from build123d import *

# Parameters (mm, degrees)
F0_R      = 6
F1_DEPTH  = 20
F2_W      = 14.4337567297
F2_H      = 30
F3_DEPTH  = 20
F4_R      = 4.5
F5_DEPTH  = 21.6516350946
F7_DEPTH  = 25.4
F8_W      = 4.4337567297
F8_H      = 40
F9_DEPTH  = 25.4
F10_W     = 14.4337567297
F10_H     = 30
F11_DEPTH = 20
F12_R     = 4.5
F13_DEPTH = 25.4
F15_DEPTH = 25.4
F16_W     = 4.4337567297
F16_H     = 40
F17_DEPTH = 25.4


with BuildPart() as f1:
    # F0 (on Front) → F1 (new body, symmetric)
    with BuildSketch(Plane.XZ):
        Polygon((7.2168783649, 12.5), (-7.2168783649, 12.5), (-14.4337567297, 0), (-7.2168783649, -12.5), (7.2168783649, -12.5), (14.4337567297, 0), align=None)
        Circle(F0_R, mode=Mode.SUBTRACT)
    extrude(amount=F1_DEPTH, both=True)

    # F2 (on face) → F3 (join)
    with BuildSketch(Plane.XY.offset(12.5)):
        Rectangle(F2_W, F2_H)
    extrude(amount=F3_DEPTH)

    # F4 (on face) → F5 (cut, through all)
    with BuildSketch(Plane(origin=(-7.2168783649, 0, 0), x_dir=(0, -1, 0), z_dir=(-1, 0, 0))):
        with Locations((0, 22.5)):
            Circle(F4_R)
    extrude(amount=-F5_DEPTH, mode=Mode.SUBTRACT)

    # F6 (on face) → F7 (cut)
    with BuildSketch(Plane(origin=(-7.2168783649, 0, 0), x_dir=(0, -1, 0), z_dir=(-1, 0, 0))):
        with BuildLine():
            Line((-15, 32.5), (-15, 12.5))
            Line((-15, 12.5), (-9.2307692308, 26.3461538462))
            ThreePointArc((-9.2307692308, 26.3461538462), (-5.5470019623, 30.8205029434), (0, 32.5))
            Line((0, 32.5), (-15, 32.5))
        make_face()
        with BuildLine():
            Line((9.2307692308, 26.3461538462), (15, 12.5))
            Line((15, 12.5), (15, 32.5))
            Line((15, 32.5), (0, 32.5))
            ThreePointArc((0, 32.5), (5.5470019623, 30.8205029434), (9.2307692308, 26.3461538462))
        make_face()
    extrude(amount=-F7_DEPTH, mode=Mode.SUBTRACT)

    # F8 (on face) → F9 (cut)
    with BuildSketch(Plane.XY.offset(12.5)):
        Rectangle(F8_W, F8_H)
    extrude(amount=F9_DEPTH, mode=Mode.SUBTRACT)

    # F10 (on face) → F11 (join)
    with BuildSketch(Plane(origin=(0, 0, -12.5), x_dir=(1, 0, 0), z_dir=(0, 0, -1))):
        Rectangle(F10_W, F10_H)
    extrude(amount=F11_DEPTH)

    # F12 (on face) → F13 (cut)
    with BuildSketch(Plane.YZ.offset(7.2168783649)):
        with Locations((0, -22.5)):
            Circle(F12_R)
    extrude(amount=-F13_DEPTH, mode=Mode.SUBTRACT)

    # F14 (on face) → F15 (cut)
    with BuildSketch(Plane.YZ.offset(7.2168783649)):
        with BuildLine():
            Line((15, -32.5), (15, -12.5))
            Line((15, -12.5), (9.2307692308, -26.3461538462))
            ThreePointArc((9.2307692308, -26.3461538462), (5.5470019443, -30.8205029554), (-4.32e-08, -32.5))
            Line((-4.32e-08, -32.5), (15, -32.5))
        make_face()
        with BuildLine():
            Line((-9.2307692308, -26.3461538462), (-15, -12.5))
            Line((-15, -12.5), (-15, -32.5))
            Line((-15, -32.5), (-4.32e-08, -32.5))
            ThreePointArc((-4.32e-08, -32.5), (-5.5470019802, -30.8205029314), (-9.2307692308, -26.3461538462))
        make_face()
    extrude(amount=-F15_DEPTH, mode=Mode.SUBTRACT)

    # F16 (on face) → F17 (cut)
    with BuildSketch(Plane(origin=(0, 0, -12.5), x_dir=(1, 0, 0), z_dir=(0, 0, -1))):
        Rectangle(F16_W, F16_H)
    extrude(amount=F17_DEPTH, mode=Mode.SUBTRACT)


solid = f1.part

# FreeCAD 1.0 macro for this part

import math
import FreeCAD as App
import Part
import Sketcher

V = App.Vector
Q = App.Units.Quantity


def add_polygon(sketch, points):
    """Adds a closed chain of lines whose ends are joined by coincident constraints."""
    first, n = sketch.GeometryCount, len(points)
    for a, b in zip(points, points[1:] + points[:1]):
        sketch.addGeometry(Part.LineSegment(App.Vector(*a, 0), App.Vector(*b, 0)), False)
    for i in range(n):
        sketch.addConstraint(Sketcher.Constraint("Coincident", first + i, 2, first + (i + 1) % n, 1))

doc = App.newDocument("Part")
body = doc.addObject("PartDesign::Body", "Body")

# Sketch on XZ plane
sketch1 = body.newObject("Sketcher::SketchObject", "Sketch")
sketch1.AttachmentSupport = (doc.getObject("XZ_Plane"), [""])
sketch1.MapMode = "FlatFace"
add_polygon(sketch1, [(7.216878, 12.5), (-7.216878, 12.5), (-14.433757, 0), (-7.216878, -12.5), (7.216878, -12.5), (14.433757, 0)])  # lines 0-5
sketch1.addGeometry(Part.Circle(V(0, 0, 0), V(0, 0, 1), 6), False)  # 6
sketch1.addConstraint([
    Sketcher.Constraint("Horizontal", 0),
    Sketcher.Constraint("Horizontal", 3),
    Sketcher.Constraint("Coincident", 6, 3, -1, 1),
    Sketcher.Constraint("Symmetric", 0, 2, 3, 2, -1, 1),
    Sketcher.Constraint("Symmetric", 1, 2, 4, 2, -1, 1),
    Sketcher.Constraint("PointOnObject", 1, 2, -1),
    Sketcher.Constraint("Parallel", 2, 5),
    Sketcher.Constraint("Vertical", 0, 2, 2, 2),
    Sketcher.Constraint("Diameter", 6, Q("12 mm")),
    Sketcher.Constraint("Angle", 1, Q("-120 deg")),
    Sketcher.Constraint("DistanceY", 2, 2, 0, 2, Q("25 mm")),
    Sketcher.Constraint("DistanceX", 0, 2, 0, 1, Q("14.433757 mm")),
])
pad1 = body.newObject("PartDesign::Pad", "Pad")
pad1.Profile = sketch1
pad1.Length = 40
pad1.Midplane = True

# Sketch on XY plane
sketch2 = body.newObject("Sketcher::SketchObject", "Sketch001")
sketch2.AttachmentSupport = (doc.getObject("XY_Plane"), [""])
sketch2.MapMode = "FlatFace"
sketch2.AttachmentOffset = App.Placement(V(0, 0, 12.5), App.Rotation())
add_polygon(sketch2, [(-7.216878, 15), (-7.216878, -15), (7.216878, -15), (7.216878, 15)])  # lines 0-3
sketch2.addConstraint([
    Sketcher.Constraint("Vertical", 0),
    Sketcher.Constraint("Horizontal", 1),
    Sketcher.Constraint("Vertical", 2),
    Sketcher.Constraint("Horizontal", 3),
    Sketcher.Constraint("Symmetric", 0, 2, 2, 2, -1, 1),
    Sketcher.Constraint("DistanceY", 0, 2, 0, 1, Q("30 mm")),
    Sketcher.Constraint("DistanceX", 1, 1, 1, 2, Q("14.433757 mm")),
])
pad2 = body.newObject("PartDesign::Pad", "Pad001")
pad2.Profile = sketch2
pad2.Length = 20

# Sketch on YZ plane
sketch3 = body.newObject("Sketcher::SketchObject", "Sketch002")
sketch3.AttachmentSupport = (doc.getObject("YZ_Plane"), [""])
sketch3.MapMode = "FlatFace"
sketch3.AttachmentOffset = App.Placement(V(0, 0, -7.216878), App.Rotation())
sketch3.addGeometry(Part.Circle(V(0, 22.5, 0), V(0, 0, 1), 4.5), False)
sketch3.addConstraint([
    Sketcher.Constraint("PointOnObject", 0, 3, -2),
    Sketcher.Constraint("Diameter", 0, Q("9 mm")),
    Sketcher.Constraint("DistanceY", -1, 1, 0, 3, Q("22.5 mm")),
])
pocket1 = body.newObject("PartDesign::Pocket", "Pocket")
pocket1.Profile = sketch3
pocket1.Type = "ThroughAll"
pocket1.Reversed = True

# Sketch on YZ plane
sketch4 = body.newObject("Sketcher::SketchObject", "Sketch003")
sketch4.AttachmentSupport = (doc.getObject("YZ_Plane"), [""])
sketch4.MapMode = "FlatFace"
sketch4.AttachmentOffset = App.Placement(V(0, 0, -7.216878), App.Rotation())
sketch4.addGeometry([
    Part.LineSegment(V(15, 32.5, 0), V(15, 12.5, 0)),  # 0
    Part.LineSegment(V(15, 12.5, 0), V(9.230769, 26.346154, 0)),  # 1
    Part.ArcOfCircle(Part.Circle(V(0, 22.5, 0), V(0, 0, 1), 10), math.radians(22.619865), math.radians(90)),  # 2
    Part.LineSegment(V(0, 32.5, 0), V(15, 32.5, 0)),  # 3
    Part.LineSegment(V(-9.230769, 26.346154, 0), V(-15, 12.5, 0)),  # 4
    Part.LineSegment(V(-15, 12.5, 0), V(-15, 32.5, 0)),  # 5
    Part.LineSegment(V(-15, 32.5, 0), V(0, 32.5, 0)),  # 6
    Part.ArcOfCircle(Part.Circle(V(0, 22.5, 0), V(0, 0, 1), 10), math.radians(90), math.radians(157.380135)),  # 7
], False)
sketch4.addConstraint([
    Sketcher.Constraint("Coincident", 0, 2, 1, 1),
    Sketcher.Constraint("Tangent", 1, 2, 2, 1),
    Sketcher.Constraint("Tangent", 2, 2, 3, 1),
    Sketcher.Constraint("Coincident", 3, 2, 0, 1),
    Sketcher.Constraint("Coincident", 4, 2, 5, 1),
    Sketcher.Constraint("Coincident", 5, 2, 6, 1),
    Sketcher.Constraint("Tangent", 6, 2, 7, 1),
    Sketcher.Constraint("Tangent", 7, 2, 4, 1),
    Sketcher.Constraint("Vertical", 0),
    Sketcher.Constraint("Horizontal", 3),
    Sketcher.Constraint("Vertical", 5),
    Sketcher.Constraint("Horizontal", 6),
    Sketcher.Constraint("Coincident", 7, 3, 2, 3),
    Sketcher.Constraint("Equal", 2, 7),
    Sketcher.Constraint("Symmetric", 0, 2, 4, 2, -2),
    Sketcher.Constraint("PointOnObject", 2, 3, -2),
    Sketcher.Constraint("Radius", 2, Q("10 mm")),
    Sketcher.Constraint("DistanceX", 3, 1, 3, 2, Q("15 mm")),
    Sketcher.Constraint("DistanceY", 0, 2, 0, 1, Q("20 mm")),
    Sketcher.Constraint("DistanceY", -1, 1, 2, 3, Q("22.5 mm")),
])
pocket2 = body.newObject("PartDesign::Pocket", "Pocket001")
pocket2.Profile = sketch4
pocket2.Length = 25.4
pocket2.Reversed = True

# Sketch on XY plane
sketch5 = body.newObject("Sketcher::SketchObject", "Sketch004")
sketch5.AttachmentSupport = (doc.getObject("XY_Plane"), [""])
sketch5.MapMode = "FlatFace"
sketch5.AttachmentOffset = App.Placement(V(0, 0, 12.5), App.Rotation())
add_polygon(sketch5, [(-2.216878, 20), (-2.216878, -20), (2.216878, -20), (2.216878, 20)])  # lines 0-3
sketch5.addConstraint([
    Sketcher.Constraint("Vertical", 0),
    Sketcher.Constraint("Horizontal", 1),
    Sketcher.Constraint("Vertical", 2),
    Sketcher.Constraint("Horizontal", 3),
    Sketcher.Constraint("Symmetric", 0, 2, 2, 2, -1, 1),
    Sketcher.Constraint("DistanceY", 0, 2, 0, 1, Q("40 mm")),
    Sketcher.Constraint("DistanceX", 1, 1, 1, 2, Q("4.433757 mm")),
])
pocket3 = body.newObject("PartDesign::Pocket", "Pocket002")
pocket3.Profile = sketch5
pocket3.Length = 25.4
pocket3.Reversed = True

# Sketch on XY plane
sketch6 = body.newObject("Sketcher::SketchObject", "Sketch005")
sketch6.AttachmentSupport = (doc.getObject("XY_Plane"), [""])
sketch6.MapMode = "FlatFace"
sketch6.AttachmentOffset = App.Placement(V(0, 0, -12.5), App.Rotation())
add_polygon(sketch6, [(-7.216878, -15), (-7.216878, 15), (7.216878, 15), (7.216878, -15)])  # lines 0-3
sketch6.addConstraint([
    Sketcher.Constraint("Vertical", 0),
    Sketcher.Constraint("Horizontal", 1),
    Sketcher.Constraint("Vertical", 2),
    Sketcher.Constraint("Horizontal", 3),
    Sketcher.Constraint("Symmetric", 0, 2, 2, 2, -1, 1),
    Sketcher.Constraint("DistanceY", 0, 1, 0, 2, Q("30 mm")),
    Sketcher.Constraint("DistanceX", 1, 1, 1, 2, Q("14.433757 mm")),
])
pad3 = body.newObject("PartDesign::Pad", "Pad002")
pad3.Profile = sketch6
pad3.Length = 20
pad3.Reversed = True

# Sketch on YZ plane
sketch7 = body.newObject("Sketcher::SketchObject", "Sketch006")
sketch7.AttachmentSupport = (doc.getObject("YZ_Plane"), [""])
sketch7.MapMode = "FlatFace"
sketch7.AttachmentOffset = App.Placement(V(0, 0, 7.216878), App.Rotation())
sketch7.addGeometry(Part.Circle(V(0, -22.5, 0), V(0, 0, 1), 4.5), False)
sketch7.addConstraint([
    Sketcher.Constraint("PointOnObject", 0, 3, -2),
    Sketcher.Constraint("Diameter", 0, Q("9 mm")),
    Sketcher.Constraint("DistanceY", 0, 3, -1, 1, Q("22.5 mm")),
])
pocket4 = body.newObject("PartDesign::Pocket", "Pocket003")
pocket4.Profile = sketch7
pocket4.Length = 25.4

# Sketch on YZ plane
sketch8 = body.newObject("Sketcher::SketchObject", "Sketch007")
sketch8.AttachmentSupport = (doc.getObject("YZ_Plane"), [""])
sketch8.MapMode = "FlatFace"
sketch8.AttachmentOffset = App.Placement(V(0, 0, 7.216878), App.Rotation())
sketch8.addGeometry([
    Part.LineSegment(V(15, -32.5, 0), V(15, -12.5, 0)),  # 0
    Part.LineSegment(V(15, -12.5, 0), V(9.230769, -26.346154, 0)),  # 1
    Part.ArcOfCircle(Part.Circle(V(0, -22.5, 0), V(0, 0, 1), 10), math.radians(-90), math.radians(-22.619865)),  # 2
    Part.LineSegment(V(0, -32.5, 0), V(15, -32.5, 0)),  # 3
    Part.LineSegment(V(-9.230769, -26.346154, 0), V(-15, -12.5, 0)),  # 4
    Part.LineSegment(V(-15, -12.5, 0), V(-15, -32.5, 0)),  # 5
    Part.LineSegment(V(-15, -32.5, 0), V(0, -32.5, 0)),  # 6
    Part.ArcOfCircle(Part.Circle(V(0, -22.5, 0), V(0, 0, 1), 10), math.radians(-157.380135), math.radians(-90)),  # 7
], False)
sketch8.addConstraint([
    Sketcher.Constraint("Coincident", 0, 2, 1, 1),
    Sketcher.Constraint("Tangent", 1, 2, 2, 2),
    Sketcher.Constraint("Tangent", 2, 1, 3, 1),
    Sketcher.Constraint("Coincident", 3, 2, 0, 1),
    Sketcher.Constraint("Coincident", 4, 2, 5, 1),
    Sketcher.Constraint("Coincident", 5, 2, 6, 1),
    Sketcher.Constraint("Tangent", 6, 2, 7, 2),
    Sketcher.Constraint("Tangent", 7, 1, 4, 1),
    Sketcher.Constraint("Vertical", 0),
    Sketcher.Constraint("Horizontal", 3),
    Sketcher.Constraint("Vertical", 5),
    Sketcher.Constraint("Horizontal", 6),
    Sketcher.Constraint("Coincident", 7, 3, 2, 3),
    Sketcher.Constraint("Equal", 2, 7),
    Sketcher.Constraint("Symmetric", 0, 2, 4, 2, -2),
    Sketcher.Constraint("PointOnObject", 2, 3, -2),
    Sketcher.Constraint("Radius", 2, Q("10 mm")),
    Sketcher.Constraint("DistanceX", 3, 1, 3, 2, Q("15 mm")),
    Sketcher.Constraint("DistanceY", 0, 1, 0, 2, Q("20 mm")),
    Sketcher.Constraint("DistanceY", 2, 3, -1, 1, Q("22.5 mm")),
])
pocket5 = body.newObject("PartDesign::Pocket", "Pocket004")
pocket5.Profile = sketch8
pocket5.Length = 25.4

# Sketch on XY plane
sketch9 = body.newObject("Sketcher::SketchObject", "Sketch008")
sketch9.AttachmentSupport = (doc.getObject("XY_Plane"), [""])
sketch9.MapMode = "FlatFace"
sketch9.AttachmentOffset = App.Placement(V(0, 0, -12.5), App.Rotation())
add_polygon(sketch9, [(-2.216878, -20), (-2.216878, 20), (2.216878, 20), (2.216878, -20)])  # lines 0-3
sketch9.addConstraint([
    Sketcher.Constraint("Vertical", 0),
    Sketcher.Constraint("Horizontal", 1),
    Sketcher.Constraint("Vertical", 2),
    Sketcher.Constraint("Horizontal", 3),
    Sketcher.Constraint("Symmetric", 0, 2, 2, 2, -1, 1),
    Sketcher.Constraint("DistanceY", 0, 1, 0, 2, Q("40 mm")),
    Sketcher.Constraint("DistanceX", 1, 1, 1, 2, Q("4.433757 mm")),
])
pocket6 = body.newObject("PartDesign::Pocket", "Pocket005")
pocket6.Profile = sketch9
pocket6.Length = 25.4

doc.recompute()
